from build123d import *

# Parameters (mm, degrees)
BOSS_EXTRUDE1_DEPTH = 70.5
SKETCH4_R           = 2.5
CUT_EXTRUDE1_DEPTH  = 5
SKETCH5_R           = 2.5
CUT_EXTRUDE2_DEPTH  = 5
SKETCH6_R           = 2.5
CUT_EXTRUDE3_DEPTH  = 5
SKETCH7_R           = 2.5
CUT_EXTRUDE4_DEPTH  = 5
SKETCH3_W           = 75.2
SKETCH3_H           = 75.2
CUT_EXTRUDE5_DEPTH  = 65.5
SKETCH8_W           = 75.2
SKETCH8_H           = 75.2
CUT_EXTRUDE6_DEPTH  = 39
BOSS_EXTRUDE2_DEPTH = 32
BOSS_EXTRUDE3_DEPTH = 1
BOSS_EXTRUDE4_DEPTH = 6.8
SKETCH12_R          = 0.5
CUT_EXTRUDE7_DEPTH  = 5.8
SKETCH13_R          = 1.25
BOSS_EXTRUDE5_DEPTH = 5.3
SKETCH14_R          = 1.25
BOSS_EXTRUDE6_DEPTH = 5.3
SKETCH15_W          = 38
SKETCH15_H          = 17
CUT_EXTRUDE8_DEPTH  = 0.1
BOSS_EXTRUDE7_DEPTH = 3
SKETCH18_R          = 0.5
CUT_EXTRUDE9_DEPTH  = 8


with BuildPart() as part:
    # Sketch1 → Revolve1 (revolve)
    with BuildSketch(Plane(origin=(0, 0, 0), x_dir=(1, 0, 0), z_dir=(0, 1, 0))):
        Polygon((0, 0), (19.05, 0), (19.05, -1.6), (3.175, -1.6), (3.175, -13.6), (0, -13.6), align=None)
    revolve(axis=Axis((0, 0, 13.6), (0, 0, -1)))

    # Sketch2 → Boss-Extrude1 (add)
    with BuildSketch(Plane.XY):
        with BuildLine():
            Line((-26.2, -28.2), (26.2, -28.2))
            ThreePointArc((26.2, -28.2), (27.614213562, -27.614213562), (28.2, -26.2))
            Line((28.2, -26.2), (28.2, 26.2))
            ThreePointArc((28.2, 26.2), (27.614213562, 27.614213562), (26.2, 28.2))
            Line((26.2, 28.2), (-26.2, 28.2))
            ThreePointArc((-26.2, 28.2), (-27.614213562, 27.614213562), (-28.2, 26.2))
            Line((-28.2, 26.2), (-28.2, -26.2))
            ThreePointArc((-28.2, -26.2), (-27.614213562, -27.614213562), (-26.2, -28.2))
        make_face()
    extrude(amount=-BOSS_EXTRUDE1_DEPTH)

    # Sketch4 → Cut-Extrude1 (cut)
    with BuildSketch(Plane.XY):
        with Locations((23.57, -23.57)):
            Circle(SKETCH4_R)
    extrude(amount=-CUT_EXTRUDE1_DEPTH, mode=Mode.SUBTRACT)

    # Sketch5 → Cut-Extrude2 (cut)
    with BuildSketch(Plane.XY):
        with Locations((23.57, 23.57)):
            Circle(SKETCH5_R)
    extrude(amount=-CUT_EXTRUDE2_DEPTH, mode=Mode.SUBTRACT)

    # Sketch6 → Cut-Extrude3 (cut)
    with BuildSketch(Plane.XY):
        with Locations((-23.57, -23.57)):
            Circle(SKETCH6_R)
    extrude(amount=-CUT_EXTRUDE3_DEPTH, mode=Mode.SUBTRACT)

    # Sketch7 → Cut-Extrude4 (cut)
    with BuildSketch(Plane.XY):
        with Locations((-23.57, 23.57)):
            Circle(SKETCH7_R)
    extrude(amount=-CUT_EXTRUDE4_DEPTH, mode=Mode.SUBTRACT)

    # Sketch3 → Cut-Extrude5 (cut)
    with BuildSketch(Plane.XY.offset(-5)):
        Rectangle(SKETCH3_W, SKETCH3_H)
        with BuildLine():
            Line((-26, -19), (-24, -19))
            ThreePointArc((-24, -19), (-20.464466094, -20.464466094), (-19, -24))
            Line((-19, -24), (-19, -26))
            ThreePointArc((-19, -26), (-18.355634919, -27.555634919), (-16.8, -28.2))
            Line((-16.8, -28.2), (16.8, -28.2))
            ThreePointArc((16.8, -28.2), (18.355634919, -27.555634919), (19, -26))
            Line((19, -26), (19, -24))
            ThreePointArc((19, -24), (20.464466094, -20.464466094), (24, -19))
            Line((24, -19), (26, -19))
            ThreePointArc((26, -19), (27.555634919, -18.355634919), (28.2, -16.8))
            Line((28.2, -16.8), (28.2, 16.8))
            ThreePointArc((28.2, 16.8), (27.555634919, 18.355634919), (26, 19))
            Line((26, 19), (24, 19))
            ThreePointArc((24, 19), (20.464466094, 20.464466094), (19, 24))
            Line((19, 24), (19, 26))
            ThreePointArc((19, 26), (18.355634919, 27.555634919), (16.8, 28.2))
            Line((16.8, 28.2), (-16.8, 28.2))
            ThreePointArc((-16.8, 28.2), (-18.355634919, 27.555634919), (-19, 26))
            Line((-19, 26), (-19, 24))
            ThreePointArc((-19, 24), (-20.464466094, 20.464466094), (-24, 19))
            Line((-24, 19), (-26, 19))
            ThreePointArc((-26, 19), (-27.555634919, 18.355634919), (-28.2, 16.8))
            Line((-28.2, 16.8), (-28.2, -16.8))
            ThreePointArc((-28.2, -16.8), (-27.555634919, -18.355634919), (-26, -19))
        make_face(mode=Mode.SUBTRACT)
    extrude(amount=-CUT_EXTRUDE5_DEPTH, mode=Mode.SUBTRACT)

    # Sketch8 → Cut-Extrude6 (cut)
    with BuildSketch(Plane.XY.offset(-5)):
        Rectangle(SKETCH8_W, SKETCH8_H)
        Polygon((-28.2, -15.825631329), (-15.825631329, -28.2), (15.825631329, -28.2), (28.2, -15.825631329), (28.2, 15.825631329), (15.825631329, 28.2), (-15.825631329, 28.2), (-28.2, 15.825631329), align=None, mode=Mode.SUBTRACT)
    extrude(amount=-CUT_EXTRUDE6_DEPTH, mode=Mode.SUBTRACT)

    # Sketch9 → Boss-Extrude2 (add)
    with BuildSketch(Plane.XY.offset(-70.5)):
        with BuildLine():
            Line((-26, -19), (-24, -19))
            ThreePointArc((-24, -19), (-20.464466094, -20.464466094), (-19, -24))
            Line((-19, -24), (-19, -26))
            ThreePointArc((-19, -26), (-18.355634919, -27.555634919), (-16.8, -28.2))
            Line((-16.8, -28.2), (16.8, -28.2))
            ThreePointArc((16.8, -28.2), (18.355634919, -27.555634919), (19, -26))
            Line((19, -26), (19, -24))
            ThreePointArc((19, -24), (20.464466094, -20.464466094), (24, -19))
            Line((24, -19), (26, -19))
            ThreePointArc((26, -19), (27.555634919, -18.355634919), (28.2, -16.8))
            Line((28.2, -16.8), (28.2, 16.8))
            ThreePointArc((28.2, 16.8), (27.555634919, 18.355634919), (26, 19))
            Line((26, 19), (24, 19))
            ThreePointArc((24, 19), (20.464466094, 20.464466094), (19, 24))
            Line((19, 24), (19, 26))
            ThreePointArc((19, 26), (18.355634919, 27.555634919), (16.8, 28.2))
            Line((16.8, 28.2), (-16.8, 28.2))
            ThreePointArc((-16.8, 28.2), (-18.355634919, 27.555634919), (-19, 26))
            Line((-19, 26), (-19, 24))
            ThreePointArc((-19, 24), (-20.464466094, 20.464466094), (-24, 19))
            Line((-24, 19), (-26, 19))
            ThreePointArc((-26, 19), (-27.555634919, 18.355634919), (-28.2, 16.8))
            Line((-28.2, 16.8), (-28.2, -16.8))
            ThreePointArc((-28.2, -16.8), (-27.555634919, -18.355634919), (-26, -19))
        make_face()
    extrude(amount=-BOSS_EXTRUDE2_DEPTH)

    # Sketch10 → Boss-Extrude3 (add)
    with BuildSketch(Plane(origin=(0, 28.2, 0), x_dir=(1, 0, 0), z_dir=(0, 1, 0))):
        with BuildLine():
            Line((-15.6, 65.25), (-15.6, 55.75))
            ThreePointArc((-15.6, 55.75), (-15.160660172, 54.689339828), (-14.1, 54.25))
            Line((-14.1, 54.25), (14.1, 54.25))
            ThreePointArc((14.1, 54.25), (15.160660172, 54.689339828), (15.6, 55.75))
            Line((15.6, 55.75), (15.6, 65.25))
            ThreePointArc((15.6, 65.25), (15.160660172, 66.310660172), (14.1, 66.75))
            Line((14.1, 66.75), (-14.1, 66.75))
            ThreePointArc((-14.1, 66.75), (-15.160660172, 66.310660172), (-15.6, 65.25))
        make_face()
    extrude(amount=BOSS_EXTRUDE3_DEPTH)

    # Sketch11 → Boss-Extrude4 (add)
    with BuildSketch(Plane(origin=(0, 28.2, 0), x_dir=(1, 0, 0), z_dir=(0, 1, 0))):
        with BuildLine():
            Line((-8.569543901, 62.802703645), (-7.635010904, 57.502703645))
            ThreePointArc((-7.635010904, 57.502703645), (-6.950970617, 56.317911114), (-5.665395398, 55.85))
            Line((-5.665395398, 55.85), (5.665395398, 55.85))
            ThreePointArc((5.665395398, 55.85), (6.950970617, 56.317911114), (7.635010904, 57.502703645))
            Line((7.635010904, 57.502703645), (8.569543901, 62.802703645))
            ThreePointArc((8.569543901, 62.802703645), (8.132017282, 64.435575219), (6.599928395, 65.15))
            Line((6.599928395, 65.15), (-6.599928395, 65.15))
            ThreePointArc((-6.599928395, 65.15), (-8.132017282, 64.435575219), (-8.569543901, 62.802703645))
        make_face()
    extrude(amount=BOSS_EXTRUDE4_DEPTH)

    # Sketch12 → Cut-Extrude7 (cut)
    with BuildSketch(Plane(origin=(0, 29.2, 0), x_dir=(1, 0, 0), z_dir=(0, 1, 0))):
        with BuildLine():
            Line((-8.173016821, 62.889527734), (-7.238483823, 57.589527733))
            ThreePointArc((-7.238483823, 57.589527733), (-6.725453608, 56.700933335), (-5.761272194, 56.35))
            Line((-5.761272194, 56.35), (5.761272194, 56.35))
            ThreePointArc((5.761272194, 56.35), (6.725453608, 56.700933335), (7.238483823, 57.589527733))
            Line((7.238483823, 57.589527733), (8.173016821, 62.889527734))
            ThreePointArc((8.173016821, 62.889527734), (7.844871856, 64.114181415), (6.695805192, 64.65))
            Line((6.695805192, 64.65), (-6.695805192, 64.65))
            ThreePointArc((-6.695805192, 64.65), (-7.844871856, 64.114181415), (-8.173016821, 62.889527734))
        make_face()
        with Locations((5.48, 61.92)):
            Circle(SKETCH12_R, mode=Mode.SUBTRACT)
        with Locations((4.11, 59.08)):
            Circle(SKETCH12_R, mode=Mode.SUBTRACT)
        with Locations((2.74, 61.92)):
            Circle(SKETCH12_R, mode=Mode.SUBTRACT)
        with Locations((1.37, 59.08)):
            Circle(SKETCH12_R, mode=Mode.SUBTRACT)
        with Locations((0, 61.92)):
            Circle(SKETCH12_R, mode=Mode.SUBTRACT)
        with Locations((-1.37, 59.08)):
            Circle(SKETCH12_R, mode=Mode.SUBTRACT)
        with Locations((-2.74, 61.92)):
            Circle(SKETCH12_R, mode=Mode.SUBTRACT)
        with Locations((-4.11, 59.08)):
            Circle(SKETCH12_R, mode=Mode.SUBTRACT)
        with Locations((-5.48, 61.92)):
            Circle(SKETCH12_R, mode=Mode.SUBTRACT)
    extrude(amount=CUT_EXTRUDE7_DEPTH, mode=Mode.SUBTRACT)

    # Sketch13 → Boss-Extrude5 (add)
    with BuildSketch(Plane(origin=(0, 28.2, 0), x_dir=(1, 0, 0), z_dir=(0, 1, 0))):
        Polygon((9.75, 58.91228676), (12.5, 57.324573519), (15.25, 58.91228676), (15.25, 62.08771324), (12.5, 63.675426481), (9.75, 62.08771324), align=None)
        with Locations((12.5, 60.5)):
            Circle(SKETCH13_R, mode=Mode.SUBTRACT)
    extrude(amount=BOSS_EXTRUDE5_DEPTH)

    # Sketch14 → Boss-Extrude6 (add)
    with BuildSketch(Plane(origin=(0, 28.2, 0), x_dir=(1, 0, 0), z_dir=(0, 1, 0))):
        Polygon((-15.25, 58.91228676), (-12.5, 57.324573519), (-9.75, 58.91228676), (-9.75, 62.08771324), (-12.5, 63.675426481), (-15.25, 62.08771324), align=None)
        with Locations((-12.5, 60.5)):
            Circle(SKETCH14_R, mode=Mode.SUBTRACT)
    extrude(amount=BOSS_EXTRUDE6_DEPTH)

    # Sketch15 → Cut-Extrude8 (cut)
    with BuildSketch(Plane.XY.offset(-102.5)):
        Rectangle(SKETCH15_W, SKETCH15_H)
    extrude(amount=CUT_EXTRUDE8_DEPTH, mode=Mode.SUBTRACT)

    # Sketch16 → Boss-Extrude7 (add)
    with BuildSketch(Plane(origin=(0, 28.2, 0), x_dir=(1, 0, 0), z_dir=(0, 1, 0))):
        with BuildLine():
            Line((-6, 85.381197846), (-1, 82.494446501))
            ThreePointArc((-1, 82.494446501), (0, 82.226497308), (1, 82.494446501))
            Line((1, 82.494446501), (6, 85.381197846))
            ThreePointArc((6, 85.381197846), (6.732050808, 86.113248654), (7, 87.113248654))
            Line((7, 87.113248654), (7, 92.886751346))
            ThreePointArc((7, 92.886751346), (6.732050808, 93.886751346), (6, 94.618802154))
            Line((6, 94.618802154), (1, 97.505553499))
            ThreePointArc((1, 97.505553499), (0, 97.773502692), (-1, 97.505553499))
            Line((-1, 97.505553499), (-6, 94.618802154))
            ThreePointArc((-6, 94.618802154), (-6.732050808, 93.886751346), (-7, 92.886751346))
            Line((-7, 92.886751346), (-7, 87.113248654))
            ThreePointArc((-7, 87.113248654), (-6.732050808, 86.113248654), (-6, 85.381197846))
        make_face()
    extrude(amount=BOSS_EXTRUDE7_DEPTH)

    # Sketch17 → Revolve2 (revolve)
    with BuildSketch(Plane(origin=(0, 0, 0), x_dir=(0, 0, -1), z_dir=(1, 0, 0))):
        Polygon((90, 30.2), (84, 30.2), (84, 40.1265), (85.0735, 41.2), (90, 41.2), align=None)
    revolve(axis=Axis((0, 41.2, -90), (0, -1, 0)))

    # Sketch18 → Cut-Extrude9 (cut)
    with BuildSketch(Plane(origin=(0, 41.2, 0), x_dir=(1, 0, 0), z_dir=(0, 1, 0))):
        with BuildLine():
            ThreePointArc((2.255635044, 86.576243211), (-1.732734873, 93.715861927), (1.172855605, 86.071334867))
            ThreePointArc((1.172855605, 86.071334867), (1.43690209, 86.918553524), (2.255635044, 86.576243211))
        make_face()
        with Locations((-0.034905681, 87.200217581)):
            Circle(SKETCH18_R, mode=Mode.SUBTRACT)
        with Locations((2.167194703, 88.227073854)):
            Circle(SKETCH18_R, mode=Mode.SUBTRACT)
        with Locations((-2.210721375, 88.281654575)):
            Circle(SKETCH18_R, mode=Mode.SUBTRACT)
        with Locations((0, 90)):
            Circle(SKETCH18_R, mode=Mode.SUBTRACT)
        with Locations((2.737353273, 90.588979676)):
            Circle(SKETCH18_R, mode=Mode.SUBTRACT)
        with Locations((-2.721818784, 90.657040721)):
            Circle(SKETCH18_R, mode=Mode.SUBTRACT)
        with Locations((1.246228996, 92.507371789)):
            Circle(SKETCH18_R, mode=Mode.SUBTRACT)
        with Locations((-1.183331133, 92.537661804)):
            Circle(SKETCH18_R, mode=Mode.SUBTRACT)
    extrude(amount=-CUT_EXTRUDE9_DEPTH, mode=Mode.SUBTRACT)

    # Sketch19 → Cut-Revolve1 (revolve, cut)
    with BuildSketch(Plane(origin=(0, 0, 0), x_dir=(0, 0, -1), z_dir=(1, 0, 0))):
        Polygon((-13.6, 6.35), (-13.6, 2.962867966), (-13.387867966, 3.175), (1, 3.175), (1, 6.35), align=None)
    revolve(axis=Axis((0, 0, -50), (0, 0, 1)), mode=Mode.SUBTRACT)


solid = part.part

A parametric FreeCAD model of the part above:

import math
import FreeCAD as App
import Part
import Sketcher

V = App.Vector
Q = App.Units.Quantity


def add_polygon(sketch, points):
    """Adds a closed chain of lines whose ends are joined by coincident constraints."""
    first, n = sketch.GeometryCount, len(points)
    for a, b in zip(points, points[1:] + points[:1]):
        sketch.addGeometry(Part.LineSegment(App.Vector(*a, 0), App.Vector(*b, 0)), False)
    for i in range(n):
        sketch.addConstraint(Sketcher.Constraint("Coincident", first + i, 2, first + (i + 1) % n, 1))

doc = App.newDocument("Part")
body = doc.addObject("PartDesign::Body", "Body")

# Sketch on XZ plane
sketch1 = body.newObject("Sketcher::SketchObject", "Sketch")
sketch1.AttachmentSupport = (doc.getObject("XZ_Plane"), [""])
sketch1.MapMode = "FlatFace"
add_polygon(sketch1, [(19.05, 0), (0, 0), (0, 13.6), (3.175, 13.6), (3.175, 1.6), (19.05, 1.6)])  # lines 0-5
sketch1.addConstraint([
    Sketcher.Constraint("Horizontal", 0),
    Sketcher.Constraint("Vertical", 1),
    Sketcher.Constraint("Horizontal", 2),
    Sketcher.Constraint("Vertical", 3),
    Sketcher.Constraint("Horizontal", 4),
    Sketcher.Constraint("Vertical", 5),
    Sketcher.Constraint("Coincident", 0, 2, -1, 1),
    Sketcher.Constraint("DistanceY", 3, 2, 3, 1, 12.0),
    Sketcher.Constraint("DistanceY", 1, 1, 1, 2, 13.6),
    Sketcher.Constraint("DistanceX", 0, 2, 0, 1, 19.05),
    Sketcher.Constraint("DistanceX", 2, 1, 2, 2, 3.175),
])
revolution = body.newObject("PartDesign::Revolution", "Revolution")
revolution.Profile = sketch1
revolution.ReferenceAxis = (sketch1, ["V_Axis"])
revolution.Angle = 360

# Sketch on XY plane
sketch2 = body.newObject("Sketcher::SketchObject", "Sketch001")
sketch2.AttachmentSupport = (doc.getObject("XY_Plane"), [""])
sketch2.MapMode = "FlatFace"
sketch2.addGeometry([
    Part.LineSegment(V(-26.2, -28.2, 0), V(26.2, -28.2, 0)),  # 0
    Part.ArcOfCircle(Part.Circle(V(26.2, -26.2, 0), V(0, 0, 1), 2), math.radians(-90), math.radians(0)),  # 1
    Part.LineSegment(V(28.2, -26.2, 0), V(28.2, 26.2, 0)),  # 2
    Part.ArcOfCircle(Part.Circle(V(26.2, 26.2, 0), V(0, 0, 1), 2), math.radians(0), math.radians(90)),  # 3
    Part.LineSegment(V(26.2, 28.2, 0), V(-26.2, 28.2, 0)),  # 4
    Part.ArcOfCircle(Part.Circle(V(-26.2, 26.2, 0), V(0, 0, 1), 2), math.radians(90), math.radians(180)),  # 5
    Part.LineSegment(V(-28.2, 26.2, 0), V(-28.2, -26.2, 0)),  # 6
    Part.ArcOfCircle(Part.Circle(V(-26.2, -26.2, 0), V(0, 0, 1), 2), math.radians(-180), math.radians(-90)),  # 7
], False)
sketch2.addConstraint([
    Sketcher.Constraint("Tangent", 0, 2, 1, 1),
    Sketcher.Constraint("Tangent", 1, 2, 2, 1),
    Sketcher.Constraint("Tangent", 2, 2, 3, 1),
    Sketcher.Constraint("Tangent", 3, 2, 4, 1),
    Sketcher.Constraint("Tangent", 4, 2, 5, 1),
    Sketcher.Constraint("Tangent", 5, 2, 6, 1),
    Sketcher.Constraint("Tangent", 6, 2, 7, 1),
    Sketcher.Constraint("Tangent", 7, 2, 0, 1),
    Sketcher.Constraint("Horizontal", 0),
    Sketcher.Constraint("Vertical", 2),
    Sketcher.Constraint("Horizontal", 4),
    Sketcher.Constraint("Vertical", 6),
    Sketcher.Constraint("Equal", 1, 3),
    Sketcher.Constraint("Equal", 3, 5),
    Sketcher.Constraint("Equal", 5, 7),
    Sketcher.Constraint("Symmetric", 1, 3, 5, 3, -1, 1),
    Sketcher.Constraint("Equal", 4, 2),
    Sketcher.Constraint("Radius", 1, 2.0),
    Sketcher.Constraint("DistanceX", 0, 1, 0, 2, 52.4),
])
pad1 = body.newObject("PartDesign::Pad", "Pad")
pad1.Profile = sketch2
pad1.Length = 70.5
pad1.Reversed = True

# Sketch on XY plane
sketch3 = body.newObject("Sketcher::SketchObject", "Sketch002")
sketch3.AttachmentSupport = (doc.getObject("XY_Plane"), [""])
sketch3.MapMode = "FlatFace"
sketch3.addGeometry(Part.Circle(V(23.57, -23.57, 0), V(0, 0, 1), 2.5), False)
sketch3.addConstraint([
    Sketcher.Constraint("Diameter", 0, 5.0),
    Sketcher.Constraint("DistanceX", -1, 1, 0, 3, 23.57),
    Sketcher.Constraint("DistanceY", 0, 3, -1, 1, 23.57),
])
pocket1 = body.newObject("PartDesign::Pocket", "Pocket")
pocket1.Profile = sketch3
pocket1.Length = 5

# Sketch on XY plane
sketch4 = body.newObject("Sketcher::SketchObject", "Sketch003")
sketch4.AttachmentSupport = (doc.getObject("XY_Plane"), [""])
sketch4.MapMode = "FlatFace"
sketch4.addGeometry(Part.Circle(V(23.57, 23.57, 0), V(0, 0, 1), 2.5), False)
sketch4.addConstraint([
    Sketcher.Constraint("Diameter", 0, 5.0),
    Sketcher.Constraint("DistanceX", -1, 1, 0, 3, 23.57),
    Sketcher.Constraint("DistanceY", -1, 1, 0, 3, 23.57),
])
pocket2 = body.newObject("PartDesign::Pocket", "Pocket001")
pocket2.Profile = sketch4
pocket2.Length = 5

# Sketch on XY plane
sketch5 = body.newObject("Sketcher::SketchObject", "Sketch004")
sketch5.AttachmentSupport = (doc.getObject("XY_Plane"), [""])
sketch5.MapMode = "FlatFace"
sketch5.addGeometry(Part.Circle(V(-23.57, -23.57, 0), V(0, 0, 1), 2.5), False)
sketch5.addConstraint([
    Sketcher.Constraint("Diameter", 0, 5.0),
    Sketcher.Constraint("DistanceX", 0, 3, -1, 1, 23.57),
    Sketcher.Constraint("DistanceY", 0, 3, -1, 1, 23.57),
])
pocket3 = body.newObject("PartDesign::Pocket", "Pocket002")
pocket3.Profile = sketch5
pocket3.Length = 5

# Sketch on XY plane
sketch6 = body.newObject("Sketcher::SketchObject", "Sketch005")
sketch6.AttachmentSupport = (doc.getObject("XY_Plane"), [""])
sketch6.MapMode = "FlatFace"
sketch6.addGeometry(Part.Circle(V(-23.57, 23.57, 0), V(0, 0, 1), 2.5), False)
sketch6.addConstraint([
    Sketcher.Constraint("Diameter", 0, 5.0),
    Sketcher.Constraint("DistanceX", 0, 3, -1, 1, 23.57),
    Sketcher.Constraint("DistanceY", -1, 1, 0, 3, 23.57),
])
pocket4 = body.newObject("PartDesign::Pocket", "Pocket003")
pocket4.Profile = sketch6
pocket4.Length = 5

# Sketch on XY plane
sketch7 = body.newObject("Sketcher::SketchObject", "Sketch006")
sketch7.AttachmentSupport = (doc.getObject("XY_Plane"), [""])
sketch7.MapMode = "FlatFace"
sketch7.AttachmentOffset = App.Placement(V(0, 0, -5), App.Rotation())
add_polygon(sketch7, [(-37.6, 37.6), (-37.6, -37.6), (37.6, -37.6), (37.6, 37.6)])  # lines 0-3
sketch7.addGeometry(Part.LineSegment(V(-24, -19, 0), V(-26, -19, 0)), False)  # 4
sketch7.addGeometry(Part.ArcOfCircle(Part.Circle(V(-26, -16.8, 0), V(0, 0, 1), 2.2), math.radians(180), math.radians(270)), False)  # 5
sketch7.addGeometry(Part.LineSegment(V(-28.2, -16.8, 0), V(-28.2, 16.8, 0)), False)  # 6
sketch7.addGeometry(Part.ArcOfCircle(Part.Circle(V(-26, 16.8, 0), V(0, 0, 1), 2.2), math.radians(90), math.radians(180)), False)  # 7
sketch7.addGeometry(Part.LineSegment(V(-26, 19, 0), V(-24, 19, 0)), False)  # 8
sketch7.addGeometry(Part.ArcOfCircle(Part.Circle(V(-24, 24, 0), V(0, 0, 1), 5), math.radians(-90), math.radians(0)), False)  # 9
sketch7.addGeometry(Part.LineSegment(V(-19, 24, 0), V(-19, 26, 0)), False)  # 10
sketch7.addGeometry(Part.ArcOfCircle(Part.Circle(V(-16.8, 26, 0), V(0, 0, 1), 2.2), math.radians(90), math.radians(180)), False)  # 11
sketch7.addGeometry(Part.LineSegment(V(-16.8, 28.2, 0), V(16.8, 28.2, 0)), False)  # 12
sketch7.addGeometry(Part.ArcOfCircle(Part.Circle(V(16.8, 26, 0), V(0, 0, 1), 2.2), math.radians(0), math.radians(90)), False)  # 13
sketch7.addGeometry(Part.LineSegment(V(19, 26, 0), V(19, 24, 0)), False)  # 14
sketch7.addGeometry(Part.ArcOfCircle(Part.Circle(V(24, 24, 0), V(0, 0, 1), 5), math.radians(180), math.radians(270)), False)  # 15
sketch7.addGeometry(Part.LineSegment(V(24, 19, 0), V(26, 19, 0)), False)  # 16
sketch7.addGeometry(Part.ArcOfCircle(Part.Circle(V(26, 16.8, 0), V(0, 0, 1), 2.2), math.radians(0), math.radians(90)), False)  # 17
sketch7.addGeometry(Part.LineSegment(V(28.2, 16.8, 0), V(28.2, -16.8, 0)), False)  # 18
sketch7.addGeometry(Part.ArcOfCircle(Part.Circle(V(26, -16.8, 0), V(0, 0, 1), 2.2), math.radians(-90), math.radians(0)), False)  # 19
sketch7.addGeometry(Part.LineSegment(V(26, -19, 0), V(24, -19, 0)), False)  # 20
sketch7.addGeometry(Part.ArcOfCircle(Part.Circle(V(24, -24, 0), V(0, 0, 1), 5), math.radians(90), math.radians(180)), False)  # 21
sketch7.addGeometry(Part.LineSegment(V(19, -24, 0), V(19, -26, 0)), False)  # 22
sketch7.addGeometry(Part.ArcOfCircle(Part.Circle(V(16.8, -26, 0), V(0, 0, 1), 2.2), math.radians(-90), math.radians(0)), False)  # 23
sketch7.addGeometry(Part.LineSegment(V(16.8, -28.2, 0), V(-16.8, -28.2, 0)), False)  # 24
sketch7.addGeometry(Part.ArcOfCircle(Part.Circle(V(-16.8, -26, 0), V(0, 0, 1), 2.2), math.radians(180), math.radians(270)), False)  # 25
sketch7.addGeometry(Part.LineSegment(V(-19, -26, 0), V(-19, -24, 0)), False)  # 26
sketch7.addGeometry(Part.ArcOfCircle(Part.Circle(V(-24, -24, 0), V(0, 0, 1), 5), math.radians(0), math.radians(90)), False)  # 27
sketch7.addConstraint([
    Sketcher.Constraint("Tangent", 4, 2, 5, 2),
    Sketcher.Constraint("Tangent", 5, 1, 6, 1),
    Sketcher.Constraint("Tangent", 6, 2, 7, 2),
    Sketcher.Constraint("Tangent", 7, 1, 8, 1),
    Sketcher.Constraint("Tangent", 8, 2, 9, 1),
    Sketcher.Constraint("Tangent", 9, 2, 10, 1),
    Sketcher.Constraint("Tangent", 10, 2, 11, 2),
    Sketcher.Constraint("Tangent", 11, 1, 12, 1),
    Sketcher.Constraint("Tangent", 12, 2, 13, 2),
    Sketcher.Constraint("Tangent", 13, 1, 14, 1),
    Sketcher.Constraint("Tangent", 14, 2, 15, 1),
    Sketcher.Constraint("Tangent", 15, 2, 16, 1),
    Sketcher.Constraint("Tangent", 16, 2, 17, 2),
    Sketcher.Constraint("Tangent", 17, 1, 18, 1),
    Sketcher.Constraint("Tangent", 18, 2, 19, 2),
    Sketcher.Constraint("Tangent", 19, 1, 20, 1),
    Sketcher.Constraint("Tangent", 20, 2, 21, 1),
    Sketcher.Constraint("Tangent", 21, 2, 22, 1),
    Sketcher.Constraint("Tangent", 22, 2, 23, 2),
    Sketcher.Constraint("Tangent", 23, 1, 24, 1),
    Sketcher.Constraint("Tangent", 24, 2, 25, 2),
    Sketcher.Constraint("Tangent", 25, 1, 26, 1),
    Sketcher.Constraint("Tangent", 26, 2, 27, 1),
    Sketcher.Constraint("Tangent", 27, 2, 4, 1),
    Sketcher.Constraint("Vertical", 0),
    Sketcher.Constraint("Horizontal", 1),
    Sketcher.Constraint("Vertical", 2),
    Sketcher.Constraint("Horizontal", 3),
    Sketcher.Constraint("Horizontal", 4),
    Sketcher.Constraint("Vertical", 6),
    Sketcher.Constraint("Horizontal", 8),
    Sketcher.Constraint("Vertical", 10),
    Sketcher.Constraint("Horizontal", 12),
    Sketcher.Constraint("Vertical", 14),
    Sketcher.Constraint("Horizontal", 16),
    Sketcher.Constraint("Vertical", 18),
    Sketcher.Constraint("Horizontal", 20),
    Sketcher.Constraint("Vertical", 22),
    Sketcher.Constraint("Horizontal", 24),
    Sketcher.Constraint("Vertical", 26),
    Sketcher.Constraint("Equal", 5, 7),
    Sketcher.Constraint("Equal", 7, 11),
    Sketcher.Constraint("Equal", 11, 13),
    Sketcher.Constraint("Equal", 9, 15),
    Sketcher.Constraint("Equal", 13, 17),
    Sketcher.Constraint("Equal", 17, 19),
    Sketcher.Constraint("Equal", 15, 21),
    Sketcher.Constraint("Equal", 19, 23),
    Sketcher.Constraint("Equal", 23, 25),
    Sketcher.Constraint("Equal", 21, 27),
    Sketcher.Constraint("Symmetric", 5, 3, 17, 3, -1, 1),
    Sketcher.Constraint("Symmetric", 9, 3, 21, 3, -1, 1),
    Sketcher.Constraint("Symmetric", 13, 3, 25, 3, -1, 1),
    Sketcher.Constraint("Symmetric", 0, 2, 2, 2, -1, 1),
    Sketcher.Constraint("Symmetric", 9, 3, 15, 3, -2),
    Sketcher.Constraint("Equal", 3, 0),
    Sketcher.Constraint("Equal", 24, 6),
    Sketcher.Constraint("Equal", 20, 10),
    Sketcher.Constraint("Radius", 9, 5.0),
    Sketcher.Constraint("Radius", 5, 2.2),
    Sketcher.Constraint("DistanceX", 4, 2, 4, 1, 2.0),
    Sketcher.Constraint("DistanceX", 1, 1, 1, 2, 75.2),
    Sketcher.Constraint("DistanceX", 12, 1, 12, 2, 33.6),
])
pocket5 = body.newObject("PartDesign::Pocket", "Pocket004")
pocket5.Profile = sketch7
pocket5.Length = 65.5

# Sketch on XY plane
sketch8 = body.newObject("Sketcher::SketchObject", "Sketch007")
sketch8.AttachmentSupport = (doc.getObject("XY_Plane"), [""])
sketch8.MapMode = "FlatFace"
sketch8.AttachmentOffset = App.Placement(V(0, 0, -5), App.Rotation())
add_polygon(sketch8, [(-37.6, 37.6), (-37.6, -37.6), (37.6, -37.6), (37.6, 37.6)])  # lines 0-3
add_polygon(sketch8, [(-15.825631, -28.2), (-28.2, -15.825631), (-28.2, 15.825631), (-15.825631, 28.2), (15.825631, 28.2), (28.2, 15.825631), (28.2, -15.825631), (15.825631, -28.2)])  # lines 4-11
sketch8.addConstraint([
    Sketcher.Constraint("Vertical", 0),
    Sketcher.Constraint("Horizontal", 1),
    Sketcher.Constraint("Vertical", 2),
    Sketcher.Constraint("Horizontal", 3),
    Sketcher.Constraint("Vertical", 5),
    Sketcher.Constraint("Horizontal", 7),
    Sketcher.Constraint("Vertical", 9),
    Sketcher.Constraint("Horizontal", 11),
    Sketcher.Constraint("Symmetric", 0, 2, 2, 2, -1, 1),
    Sketcher.Constraint("Symmetric", 4, 2, 8, 2, -1, 1),
    Sketcher.Constraint("Symmetric", 6, 2, 10, 2, -1, 1),
    Sketcher.Constraint("Perpendicular", 4, 6),
    Sketcher.Constraint("Perpendicular", 6, 8),
    Sketcher.Constraint("Perpendicular", 8, 10),
    Sketcher.Constraint("Horizontal", 5, 2, 8, 2),
    Sketcher.Constraint("Vertical", 7, 2, 10, 2),
    Sketcher.Constraint("Equal", 3, 0),
    Sketcher.Constraint("Equal", 11, 5),
    Sketcher.Constraint("DistanceX", 1, 1, 1, 2, 75.2),
    Sketcher.Constraint("Distance", 4, 17.5),
    Sketcher.Constraint("DistanceX", 4, 2, -1, 1, 28.2),
])
pocket6 = body.newObject("PartDesign::Pocket", "Pocket005")
pocket6.Profile = sketch8
pocket6.Length = 39

# Sketch on XY plane
sketch9 = body.newObject("Sketcher::SketchObject", "Sketch008")
sketch9.AttachmentSupport = (doc.getObject("XY_Plane"), [""])
sketch9.MapMode = "FlatFace"
sketch9.AttachmentOffset = App.Placement(V(0, 0, -70.5), App.Rotation())
sketch9.addGeometry([
    Part.LineSegment(V(-26, -19, 0), V(-24, -19, 0)),  # 0
    Part.ArcOfCircle(Part.Circle(V(-24, -24, 0), V(0, 0, 1), 5), math.radians(0), math.radians(90)),  # 1
    Part.LineSegment(V(-19, -24, 0), V(-19, -26, 0)),  # 2
    Part.ArcOfCircle(Part.Circle(V(-16.8, -26, 0), V(0, 0, 1), 2.2), math.radians(180), math.radians(270)),  # 3
    Part.LineSegment(V(-16.8, -28.2, 0), V(16.8, -28.2, 0)),  # 4
    Part.ArcOfCircle(Part.Circle(V(16.8, -26, 0), V(0, 0, 1), 2.2), math.radians(-90), math.radians(0)),  # 5
    Part.LineSegment(V(19, -26, 0), V(19, -24, 0)),  # 6
    Part.ArcOfCircle(Part.Circle(V(24, -24, 0), V(0, 0, 1), 5), math.radians(90), math.radians(180)),  # 7
    Part.LineSegment(V(24, -19, 0), V(26, -19, 0)),  # 8
    Part.ArcOfCircle(Part.Circle(V(26, -16.8, 0), V(0, 0, 1), 2.2), math.radians(-90), math.radians(0)),  # 9
    Part.LineSegment(V(28.2, -16.8, 0), V(28.2, 16.8, 0)),  # 10
    Part.ArcOfCircle(Part.Circle(V(26, 16.8, 0), V(0, 0, 1), 2.2), math.radians(0), math.radians(90)),  # 11
    Part.LineSegment(V(26, 19, 0), V(24, 19, 0)),  # 12
    Part.ArcOfCircle(Part.Circle(V(24, 24, 0), V(0, 0, 1), 5), math.radians(180), math.radians(270)),  # 13
    Part.LineSegment(V(19, 24, 0), V(19, 26, 0)),  # 14
    Part.ArcOfCircle(Part.Circle(V(16.8, 26, 0), V(0, 0, 1), 2.2), math.radians(0), math.radians(90)),  # 15
    Part.LineSegment(V(16.8, 28.2, 0), V(-16.8, 28.2, 0)),  # 16
    Part.ArcOfCircle(Part.Circle(V(-16.8, 26, 0), V(0, 0, 1), 2.2), math.radians(90), math.radians(180)),  # 17
    Part.LineSegment(V(-19, 26, 0), V(-19, 24, 0)),  # 18
    Part.ArcOfCircle(Part.Circle(V(-24, 24, 0), V(0, 0, 1), 5), math.radians(-90), math.radians(0)),  # 19
    Part.LineSegment(V(-24, 19, 0), V(-26, 19, 0)),  # 20
    Part.ArcOfCircle(Part.Circle(V(-26, 16.8, 0), V(0, 0, 1), 2.2), math.radians(90), math.radians(180)),  # 21
    Part.LineSegment(V(-28.2, 16.8, 0), V(-28.2, -16.8, 0)),  # 22
    Part.ArcOfCircle(Part.Circle(V(-26, -16.8, 0), V(0, 0, 1), 2.2), math.radians(180), math.radians(270)),  # 23
], False)
sketch9.addConstraint([
    Sketcher.Constraint("Tangent", 0, 2, 1, 2),
    Sketcher.Constraint("Tangent", 1, 1, 2, 1),
    Sketcher.Constraint("Tangent", 2, 2, 3, 1),
    Sketcher.Constraint("Tangent", 3, 2, 4, 1),
    Sketcher.Constraint("Tangent", 4, 2, 5, 1),
    Sketcher.Constraint("Tangent", 5, 2, 6, 1),
    Sketcher.Constraint("Tangent", 6, 2, 7, 2),
    Sketcher.Constraint("Tangent", 7, 1, 8, 1),
    Sketcher.Constraint("Tangent", 8, 2, 9, 1),
    Sketcher.Constraint("Tangent", 9, 2, 10, 1),
    Sketcher.Constraint("Tangent", 10, 2, 11, 1),
    Sketcher.Constraint("Tangent", 11, 2, 12, 1),
    Sketcher.Constraint("Tangent", 12, 2, 13, 2),
    Sketcher.Constraint("Tangent", 13, 1, 14, 1),
    Sketcher.Constraint("Tangent", 14, 2, 15, 1),
    Sketcher.Constraint("Tangent", 15, 2, 16, 1),
    Sketcher.Constraint("Tangent", 16, 2, 17, 1),
    Sketcher.Constraint("Tangent", 17, 2, 18, 1),
    Sketcher.Constraint("Tangent", 18, 2, 19, 2),
    Sketcher.Constraint("Tangent", 19, 1, 20, 1),
    Sketcher.Constraint("Tangent", 20, 2, 21, 1),
    Sketcher.Constraint("Tangent", 21, 2, 22, 1),
    Sketcher.Constraint("Tangent", 22, 2, 23, 1),
    Sketcher.Constraint("Tangent", 23, 2, 0, 1),
    Sketcher.Constraint("Horizontal", 0),
    Sketcher.Constraint("Vertical", 2),
    Sketcher.Constraint("Horizontal", 4),
    Sketcher.Constraint("Vertical", 6),
    Sketcher.Constraint("Horizontal", 8),
    Sketcher.Constraint("Vertical", 10),
    Sketcher.Constraint("Horizontal", 12),
    Sketcher.Constraint("Vertical", 14),
    Sketcher.Constraint("Horizontal", 16),
    Sketcher.Constraint("Vertical", 18),
    Sketcher.Constraint("Horizontal", 20),
    Sketcher.Constraint("Vertical", 22),
    Sketcher.Constraint("Equal", 3, 5),
    Sketcher.Constraint("Equal", 1, 7),
    Sketcher.Constraint("Equal", 5, 9),
    Sketcher.Constraint("Equal", 9, 11),
    Sketcher.Constraint("Equal", 7, 13),
    Sketcher.Constraint("Equal", 11, 15),
    Sketcher.Constraint("Equal", 15, 17),
    Sketcher.Constraint("Equal", 13, 19),
    Sketcher.Constraint("Equal", 17, 21),
    Sketcher.Constraint("Equal", 21, 23),
    Sketcher.Constraint("Symmetric", 1, 3, 13, 3, -1, 1),
    Sketcher.Constraint("Symmetric", 5, 3, 17, 3, -1, 1),
    Sketcher.Constraint("Symmetric", 9, 3, 21, 3, -1, 1),
    Sketcher.Constraint("Symmetric", 1, 3, 7, 3, -2),
    Sketcher.Constraint("Equal", 20, 2),
    Sketcher.Constraint("Equal", 16, 10),
    Sketcher.Constraint("Radius", 1, 5.0),
    Sketcher.Constraint("Radius", 3, 2.2),
    Sketcher.Constraint("DistanceX", 0, 1, 0, 2, 2.0),
    Sketcher.Constraint("DistanceX", 4, 1, 4, 2, 33.6),
])
pad2 = body.newObject("PartDesign::Pad", "Pad001")
pad2.Profile = sketch9
pad2.Length = 32
pad2.Reversed = True

# Sketch on XZ plane
sketch10 = body.newObject("Sketcher::SketchObject", "Sketch009")
sketch10.AttachmentSupport = (doc.getObject("XZ_Plane"), [""])
sketch10.MapMode = "FlatFace"
sketch10.AttachmentOffset = App.Placement(V(0, 0, -28.2), App.Rotation())
sketch10.addGeometry([
    Part.LineSegment(V(-15.6, -65.25, 0), V(-15.6, -55.75, 0)),  # 0
    Part.ArcOfCircle(Part.Circle(V(-14.1, -55.75, 0), V(0, 0, 1), 1.5), math.radians(90), math.radians(180)),  # 1
    Part.LineSegment(V(-14.1, -54.25, 0), V(14.1, -54.25, 0)),  # 2
    Part.ArcOfCircle(Part.Circle(V(14.1, -55.75, 0), V(0, 0, 1), 1.5), math.radians(0), math.radians(90)),  # 3
    Part.LineSegment(V(15.6, -55.75, 0), V(15.6, -65.25, 0)),  # 4
    Part.ArcOfCircle(Part.Circle(V(14.1, -65.25, 0), V(0, 0, 1), 1.5), math.radians(-90), math.radians(0)),  # 5
    Part.LineSegment(V(14.1, -66.75, 0), V(-14.1, -66.75, 0)),  # 6
    Part.ArcOfCircle(Part.Circle(V(-14.1, -65.25, 0), V(0, 0, 1), 1.5), math.radians(180), math.radians(270)),  # 7
], False)
sketch10.addConstraint([
    Sketcher.Constraint("Tangent", 0, 2, 1, 2),
    Sketcher.Constraint("Tangent", 1, 1, 2, 1),
    Sketcher.Constraint("Tangent", 2, 2, 3, 2),
    Sketcher.Constraint("Tangent", 3, 1, 4, 1),
    Sketcher.Constraint("Tangent", 4, 2, 5, 2),
    Sketcher.Constraint("Tangent", 5, 1, 6, 1),
    Sketcher.Constraint("Tangent", 6, 2, 7, 2),
    Sketcher.Constraint("Tangent", 7, 1, 0, 1),
    Sketcher.Constraint("Vertical", 0),
    Sketcher.Constraint("Horizontal", 2),
    Sketcher.Constraint("Vertical", 4),
    Sketcher.Constraint("Horizontal", 6),
    Sketcher.Constraint("Equal", 1, 3),
    Sketcher.Constraint("Equal", 3, 5),
    Sketcher.Constraint("Equal", 5, 7),
    Sketcher.Constraint("Radius", 1, 1.5),
    Sketcher.Constraint("DistanceX", 2, 1, 2, 2, 28.2),
    Sketcher.Constraint("DistanceY", 0, 1, 0, 2, 9.5),
    Sketcher.Constraint("DistanceX", 1, 3, -1, 1, 14.1),
    Sketcher.Constraint("DistanceY", 1, 3, -1, 1, 55.75),
])
pad3 = body.newObject("PartDesign::Pad", "Pad002")
pad3.Profile = sketch10
pad3.Length = 1
pad3.Reversed = True

# Sketch on XZ plane
sketch11 = body.newObject("Sketcher::SketchObject", "Sketch010")
sketch11.AttachmentSupport = (doc.getObject("XZ_Plane"), [""])
sketch11.MapMode = "FlatFace"
sketch11.AttachmentOffset = App.Placement(V(0, 0, -28.2), App.Rotation())
sketch11.addGeometry([
    Part.LineSegment(V(-8.569544, -62.802704, 0), V(-7.635011, -57.502704, 0)),  # 0
    Part.ArcOfCircle(Part.Circle(V(-5.665395, -57.85, 0), V(0, 0, 1), 2), math.radians(90), math.radians(170)),  # 1
    Part.LineSegment(V(-5.665395, -55.85, 0), V(5.665395, -55.85, 0)),  # 2
    Part.ArcOfCircle(Part.Circle(V(5.665395, -57.85, 0), V(0, 0, 1), 2), math.radians(10), math.radians(90)),  # 3
    Part.LineSegment(V(7.635011, -57.502704, 0), V(8.569544, -62.802704, 0)),  # 4
    Part.ArcOfCircle(Part.Circle(V(6.599928, -63.15, 0), V(0, 0, 1), 2), math.radians(-90), math.radians(10)),  # 5
    Part.LineSegment(V(6.599928, -65.15, 0), V(-6.599928, -65.15, 0)),  # 6
    Part.ArcOfCircle(Part.Circle(V(-6.599928, -63.15, 0), V(0, 0, 1), 2), math.radians(170), math.radians(270)),  # 7
], False)
sketch11.addConstraint([
    Sketcher.Constraint("Tangent", 0, 2, 1, 2),
    Sketcher.Constraint("Tangent", 1, 1, 2, 1),
    Sketcher.Constraint("Tangent", 2, 2, 3, 2),
    Sketcher.Constraint("Tangent", 3, 1, 4, 1),
    Sketcher.Constraint("Tangent", 4, 2, 5, 2),
    Sketcher.Constraint("Tangent", 5, 1, 6, 1),
    Sketcher.Constraint("Tangent", 6, 2, 7, 2),
    Sketcher.Constraint("Tangent", 7, 1, 0, 1),
    Sketcher.Constraint("Horizontal", 2),
    Sketcher.Constraint("Horizontal", 6),
    Sketcher.Constraint("Equal", 1, 3),
    Sketcher.Constraint("Equal", 3, 5),
    Sketcher.Constraint("Equal", 5, 7),
    Sketcher.Constraint("Symmetric", 0, 2, 3, 1, -2),
    Sketcher.Constraint("Radius", 1, 2.0),
    Sketcher.Constraint("Angle", 0, Q("80 deg")),
    Sketcher.Constraint("DistanceY", 5, 3, 3, 3, 5.3),
    Sketcher.Constraint("DistanceY", 1, 3, -1, 1, 57.85),
    Sketcher.Constraint("DistanceX", 2, 1, 2, 2, 11.330791),
])
pad4 = body.newObject("PartDesign::Pad", "Pad003")
pad4.Profile = sketch11
pad4.Length = 6.8
pad4.Reversed = True

# Sketch on XZ plane
sketch12 = body.newObject("Sketcher::SketchObject", "Sketch011")
sketch12.AttachmentSupport = (doc.getObject("XZ_Plane"), [""])
sketch12.MapMode = "FlatFace"
sketch12.AttachmentOffset = App.Placement(V(0, 0, -29.2), App.Rotation())
sketch12.addGeometry([
    Part.LineSegment(V(-8.173017, -62.889528, 0), V(-7.238484, -57.589528, 0)),  # 0
    Part.ArcOfCircle(Part.Circle(V(-5.761272, -57.85, 0), V(0, 0, 1), 1.5), math.radians(90), math.radians(170)),  # 1
    Part.LineSegment(V(-5.761272, -56.35, 0), V(5.761272, -56.35, 0)),  # 2
    Part.ArcOfCircle(Part.Circle(V(5.761272, -57.85, 0), V(0, 0, 1), 1.5), math.radians(10), math.radians(90)),  # 3
    Part.LineSegment(V(7.238484, -57.589528, 0), V(8.173017, -62.889528, 0)),  # 4
    Part.ArcOfCircle(Part.Circle(V(6.695805, -63.15, 0), V(0, 0, 1), 1.5), math.radians(-90), math.radians(10)),  # 5
    Part.LineSegment(V(6.695805, -64.65, 0), V(-6.695805, -64.65, 0)),  # 6
    Part.ArcOfCircle(Part.Circle(V(-6.695805, -63.15, 0), V(0, 0, 1), 1.5), math.radians(170), math.radians(270)),  # 7
    Part.Circle(V(-4.11, -59.08, 0), V(0, 0, 1), 0.5),  # 8
    Part.Circle(V(-1.37, -59.08, 0), V(0, 0, 1), 0.5),  # 9
    Part.Circle(V(1.37, -59.08, 0), V(0, 0, 1), 0.5),  # 10
    Part.Circle(V(4.11, -59.08, 0), V(0, 0, 1), 0.5),  # 11
    Part.Circle(V(-5.48, -61.92, 0), V(0, 0, 1), 0.5),  # 12
    Part.Circle(V(-2.74, -61.92, 0), V(0, 0, 1), 0.5),  # 13
    Part.Circle(V(0, -61.92, 0), V(0, 0, 1), 0.5),  # 14
    Part.Circle(V(2.74, -61.92, 0), V(0, 0, 1), 0.5),  # 15
    Part.Circle(V(5.48, -61.92, 0), V(0, 0, 1), 0.5),  # 16
], False)
sketch12.addConstraint([
    Sketcher.Constraint("Tangent", 0, 2, 1, 2),
    Sketcher.Constraint("Tangent", 1, 1, 2, 1),
    Sketcher.Constraint("Tangent", 2, 2, 3, 2),
    Sketcher.Constraint("Tangent", 3, 1, 4, 1),
    Sketcher.Constraint("Tangent", 4, 2, 5, 2),
    Sketcher.Constraint("Tangent", 5, 1, 6, 1),
    Sketcher.Constraint("Tangent", 6, 2, 7, 2),
    Sketcher.Constraint("Tangent", 7, 1, 0, 1),
    Sketcher.Constraint("Horizontal", 2),
    Sketcher.Constraint("Horizontal", 6),
    Sketcher.Constraint("Equal", 1, 3),
    Sketcher.Constraint("Equal", 3, 5),
    Sketcher.Constraint("Equal", 5, 7),
    Sketcher.Constraint("Equal", 8, 9),
    Sketcher.Constraint("Equal", 9, 10),
    Sketcher.Constraint("Equal", 10, 11),
    Sketcher.Constraint("Equal", 11, 12),
    Sketcher.Constraint("Equal", 12, 13),
    Sketcher.Constraint("Equal", 13, 14),
    Sketcher.Constraint("Equal", 14, 15),
    Sketcher.Constraint("Equal", 15, 16),
    Sketcher.Constraint("Symmetric", 9, 3, 10, 3, -2),
    Sketcher.Constraint("Symmetric", 8, 3, 11, 3, -2),
    Sketcher.Constraint("Symmetric", 13, 3, 15, 3, -2),
    Sketcher.Constraint("Symmetric", 12, 3, 16, 3, -2),
    Sketcher.Constraint("Symmetric", 0, 2, 3, 1, -2),
    Sketcher.Constraint("PointOnObject", 14, 3, -2),
    Sketcher.Constraint("Horizontal", 8, 3, 9, 3),
    Sketcher.Constraint("Horizontal", 12, 3, 13, 3),
    Sketcher.Constraint("Horizontal", 13, 3, 14, 3),
    Sketcher.Constraint("Diameter", 8, 1.0),
    Sketcher.Constraint("Radius", 1, 1.5),
    Sketcher.Constraint("Angle", 0, Q("80 deg")),
    Sketcher.Constraint("DistanceY", 5, 3, 3, 3, 5.3),
    Sketcher.Constraint("DistanceY", 1, 3, -1, 1, 57.85),
    Sketcher.Constraint("DistanceX", 8, 3, -1, 1, 4.11),
    Sketcher.Constraint("DistanceY", 8, 3, -1, 1, 59.08),
    Sketcher.Constraint("DistanceX", 9, 3, -1, 1, 1.37),
    Sketcher.Constraint("DistanceX", 12, 3, -1, 1, 5.48),
    Sketcher.Constraint("DistanceY", 12, 3, -1, 1, 61.92),
    Sketcher.Constraint("DistanceX", 13, 3, -1, 1, 2.74),
    Sketcher.Constraint("DistanceX", 6, 2, 6, 1, 13.39161),
])
pocket7 = body.newObject("PartDesign::Pocket", "Pocket006")
pocket7.Profile = sketch12
pocket7.Length = 5.8

# Sketch on XZ plane
sketch13 = body.newObject("Sketcher::SketchObject", "Sketch012")
sketch13.AttachmentSupport = (doc.getObject("XZ_Plane"), [""])
sketch13.MapMode = "FlatFace"
sketch13.AttachmentOffset = App.Placement(V(0, 0, -28.2), App.Rotation())
add_polygon(sketch13, [(9.75, -58.912287), (12.5, -57.324574), (15.25, -58.912287), (15.25, -62.087713), (12.5, -63.675426), (9.75, -62.087713)])  # lines 0-5
sketch13.addGeometry(Part.Circle(V(12.5, -60.5, 0), V(0, 0, 1), 1.25), False)  # 6
sketch13.addConstraint([
    Sketcher.Constraint("Vertical", 2),
    Sketcher.Constraint("Vertical", 5),
    Sketcher.Constraint("Parallel", 0, 3),
    Sketcher.Constraint("Parallel", 1, 4),
    Sketcher.Constraint("Horizontal", 2, 2, 4, 2),
    Sketcher.Constraint("Horizontal", 1, 2, 5, 2),
    Sketcher.Constraint("Vertical", 6, 3, 0, 2),
    Sketcher.Constraint("Vertical", 0, 2, 3, 2),
    Sketcher.Constraint("Diameter", 6, 2.5),
    Sketcher.Constraint("Angle", 0, Q("30 deg")),
    Sketcher.Constraint("DistanceX", -1, 1, 6, 3, 12.5),
    Sketcher.Constraint("DistanceY", 6, 3, -1, 1, 60.5),
    Sketcher.Constraint("DistanceX", 4, 2, 2, 2, 5.5),
    Sketcher.Constraint("DistanceY", 2, 2, 2, 1, 3.175426),
    Sketcher.Constraint("DistanceY", 0, 2, -1, 1, 57.324574),
])
pad5 = body.newObject("PartDesign::Pad", "Pad004")
pad5.Profile = sketch13
pad5.Length = 5.3
pad5.Reversed = True

# Sketch on XZ plane
sketch14 = body.newObject("Sketcher::SketchObject", "Sketch013")
sketch14.AttachmentSupport = (doc.getObject("XZ_Plane"), [""])
sketch14.MapMode = "FlatFace"
sketch14.AttachmentOffset = App.Placement(V(0, 0, -28.2), App.Rotation())
add_polygon(sketch14, [(-15.25, -58.912287), (-12.5, -57.324574), (-9.75, -58.912287), (-9.75, -62.087713), (-12.5, -63.675426), (-15.25, -62.087713)])  # lines 0-5
sketch14.addGeometry(Part.Circle(V(-12.5, -60.5, 0), V(0, 0, 1), 1.25), False)  # 6
sketch14.addConstraint([
    Sketcher.Constraint("Vertical", 2),
    Sketcher.Constraint("Vertical", 5),
    Sketcher.Constraint("Parallel", 0, 3),
    Sketcher.Constraint("Parallel", 1, 4),
    Sketcher.Constraint("Horizontal", 2, 2, 4, 2),
    Sketcher.Constraint("Horizontal", 1, 2, 5, 2),
    Sketcher.Constraint("Vertical", 6, 3, 0, 2),
    Sketcher.Constraint("Vertical", 0, 2, 3, 2),
    Sketcher.Constraint("Diameter", 6, 2.5),
    Sketcher.Constraint("Angle", 0, Q("30 deg")),
    Sketcher.Constraint("DistanceX", 6, 3, -1, 1, 12.5),
    Sketcher.Constraint("DistanceY", 6, 3, -1, 1, 60.5),
    Sketcher.Constraint("DistanceX", 4, 2, 2, 2, 5.5),
    Sketcher.Constraint("DistanceY", 2, 2, 2, 1, 3.175426),
    Sketcher.Constraint("DistanceY", 0, 2, -1, 1, 57.324574),
])
pad6 = body.newObject("PartDesign::Pad", "Pad005")
pad6.Profile = sketch14
pad6.Length = 5.3
pad6.Reversed = True

# Sketch on XY plane
sketch15 = body.newObject("Sketcher::SketchObject", "Sketch014")
sketch15.AttachmentSupport = (doc.getObject("XY_Plane"), [""])
sketch15.MapMode = "FlatFace"
sketch15.AttachmentOffset = App.Placement(V(0, 0, -102.5), App.Rotation())
add_polygon(sketch15, [(-19, 8.5), (-19, -8.5), (19, -8.5), (19, 8.5)])  # lines 0-3
sketch15.addConstraint([
    Sketcher.Constraint("Vertical", 0),
    Sketcher.Constraint("Horizontal", 1),
    Sketcher.Constraint("Vertical", 2),
    Sketcher.Constraint("Horizontal", 3),
    Sketcher.Constraint("Symmetric", 0, 2, 2, 2, -1, 1),
    Sketcher.Constraint("DistanceX", 1, 1, 1, 2, 38.0),
    Sketcher.Constraint("DistanceY", 0, 2, 0, 1, 17.0),
])
pocket8 = body.newObject("PartDesign::Pocket", "Pocket007")
pocket8.Profile = sketch15
pocket8.Length = 0.1
pocket8.Reversed = True

# Sketch on XZ plane
sketch16 = body.newObject("Sketcher::SketchObject", "Sketch015")
sketch16.AttachmentSupport = (doc.getObject("XZ_Plane"), [""])
sketch16.MapMode = "FlatFace"
sketch16.AttachmentOffset = App.Placement(V(0, 0, -28.2), App.Rotation())
sketch16.addGeometry([
    Part.LineSegment(V(-6, -85.381198, 0), V(-1, -82.494447, 0)),  # 0
    Part.ArcOfCircle(Part.Circle(V(0, -84.226497, 0), V(0, 0, 1), 2), math.radians(60), math.radians(120)),  # 1
    Part.LineSegment(V(1, -82.494447, 0), V(6, -85.381198, 0)),  # 2
    Part.ArcOfCircle(Part.Circle(V(5, -87.113249, 0), V(0, 0, 1), 2), math.radians(0), math.radians(60)),  # 3
    Part.LineSegment(V(7, -87.113249, 0), V(7, -92.886751, 0)),  # 4
    Part.ArcOfCircle(Part.Circle(V(5, -92.886751, 0), V(0, 0, 1), 2), math.radians(-60), math.radians(0)),  # 5
    Part.LineSegment(V(6, -94.618802, 0), V(1, -97.505553, 0)),  # 6
    Part.ArcOfCircle(Part.Circle(V(0, -95.773503, 0), V(0, 0, 1), 2), math.radians(-120), math.radians(-60)),  # 7
    Part.LineSegment(V(-1, -97.505553, 0), V(-6, -94.618802, 0)),  # 8
    Part.ArcOfCircle(Part.Circle(V(-5, -92.886751, 0), V(0, 0, 1), 2), math.radians(180), math.radians(240)),  # 9
    Part.LineSegment(V(-7, -92.886751, 0), V(-7, -87.113249, 0)),  # 10
    Part.ArcOfCircle(Part.Circle(V(-5, -87.113249, 0), V(0, 0, 1), 2), math.radians(120), math.radians(180)),  # 11
], False)
sketch16.addConstraint([
    Sketcher.Constraint("Tangent", 0, 2, 1, 2),
    Sketcher.Constraint("Tangent", 1, 1, 2, 1),
    Sketcher.Constraint("Tangent", 2, 2, 3, 2),
    Sketcher.Constraint("Tangent", 3, 1, 4, 1),
    Sketcher.Constraint("Tangent", 4, 2, 5, 2),
    Sketcher.Constraint("Tangent", 5, 1, 6, 1),
    Sketcher.Constraint("Tangent", 6, 2, 7, 2),
    Sketcher.Constraint("Tangent", 7, 1, 8, 1),
    Sketcher.Constraint("Tangent", 8, 2, 9, 2),
    Sketcher.Constraint("Tangent", 9, 1, 10, 1),
    Sketcher.Constraint("Tangent", 10, 2, 11, 2),
    Sketcher.Constraint("Tangent", 11, 1, 0, 1),
    Sketcher.Constraint("Vertical", 4),
    Sketcher.Constraint("Vertical", 10),
    Sketcher.Constraint("Equal", 1, 3),
    Sketcher.Constraint("Equal", 3, 5),
    Sketcher.Constraint("Equal", 5, 7),
    Sketcher.Constraint("Equal", 7, 9),
    Sketcher.Constraint("Equal", 9, 11),
    Sketcher.Constraint("Symmetric", 5, 3, 9, 3, -2),
    Sketcher.Constraint("Symmetric", 0, 2, 1, 1, -2),
    Sketcher.Constraint("PointOnObject", 7, 3, -2),
    Sketcher.Constraint("Parallel", 0, 6),
    Sketcher.Constraint("Radius", 1, 2.0),
    Sketcher.Constraint("Angle", 0, Q("30 deg")),
    Sketcher.Constraint("DistanceX", -1, 1, 3, 3, 5.0),
    Sketcher.Constraint("DistanceY", 4, 2, 4, 1, 5.773503),
    Sketcher.Constraint("DistanceY", 3, 3, -1, 1, 87.113249),
])
pad7 = body.newObject("PartDesign::Pad", "Pad006")
pad7.Profile = sketch16
pad7.Length = 3
pad7.Reversed = True

# Sketch on YZ plane
sketch17 = body.newObject("Sketcher::SketchObject", "Sketch016")
sketch17.AttachmentSupport = (doc.getObject("YZ_Plane"), [""])
sketch17.MapMode = "FlatFace"
add_polygon(sketch17, [(30.2, -84), (30.2, -90), (41.2, -90), (41.2, -85.0735), (40.1265, -84)])  # lines 0-4
sketch17.addGeometry(Part.LineSegment(V(41.2, -90, 0), V(30.2, -90, 0)), True)  # axis
sketch17.addConstraint([
    Sketcher.Constraint("Vertical", 0),
    Sketcher.Constraint("Horizontal", 1),
    Sketcher.Constraint("Vertical", 2),
    Sketcher.Constraint("Horizontal", 4),
    Sketcher.Constraint("Horizontal", 5),
    Sketcher.Constraint("Coincident", 5, 1, 1, 2),
    Sketcher.Constraint("Vertical", 4, 2, 5, 2),
    Sketcher.Constraint("DistanceX", 1, 1, 1, 2, 11.0),
    Sketcher.Constraint("DistanceY", 0, 2, 0, 1, 6.0),
    Sketcher.Constraint("Angle", 3, Q("135 deg")),
    Sketcher.Constraint("DistanceY", 0, 2, -1, 1, 90.0),
    Sketcher.Constraint("DistanceX", -1, 1, 0, 2, 30.2),
    Sketcher.Constraint("DistanceX", 4, 2, 4, 1, 9.9265),
])
revolution2 = body.newObject("PartDesign::Revolution", "Revolution001")
revolution2.Profile = sketch17
revolution2.ReferenceAxis = (sketch17, ["Axis0"])
revolution2.Angle = 360

# Sketch on XZ plane
sketch18 = body.newObject("Sketcher::SketchObject", "Sketch017")
sketch18.AttachmentSupport = (doc.getObject("XZ_Plane"), [""])
sketch18.MapMode = "FlatFace"
sketch18.AttachmentOffset = App.Placement(V(0, 0, -41.2), App.Rotation())
sketch18.addGeometry([
    Part.ArcOfCircle(Part.Circle(V(0, -90, 0), V(0, 0, 1), 4.1), math.radians(73.37764), math.radians(416.62236)),  # 0
    Part.ArcOfCircle(Part.Circle(V(1.690473, -86.374769, 0), V(0, 0, 1), 0.6), math.radians(149.620621), math.radians(340.379379)),  # 1
    Part.Circle(V(-2.210721, -88.281655, 0), V(0, 0, 1), 0.5),  # 2
    Part.Circle(V(-0.034906, -87.200218, 0), V(0, 0, 1), 0.5),  # 3
    Part.Circle(V(2.167195, -88.227074, 0), V(0, 0, 1), 0.5),  # 4
    Part.Circle(V(-2.721819, -90.657041, 0), V(0, 0, 1), 0.5),  # 5
    Part.Circle(V(0, -90, 0), V(0, 0, 1), 0.5),  # 6
    Part.Circle(V(-1.183331, -92.537662, 0), V(0, 0, 1), 0.5),  # 7
    Part.Circle(V(2.737353, -90.58898, 0), V(0, 0, 1), 0.5),  # 8
    Part.Circle(V(1.246229, -92.507372, 0), V(0, 0, 1), 0.5),  # 9
], False)
sketch18.addConstraint([
    Sketcher.Constraint("Coincident", 0, 1, 1, 1),
    Sketcher.Constraint("Coincident", 1, 2, 0, 2),
    Sketcher.Constraint("Coincident", 6, 3, 0, 3),
    Sketcher.Constraint("Equal", 2, 3),
    Sketcher.Constraint("Equal", 3, 4),
    Sketcher.Constraint("Equal", 4, 5),
    Sketcher.Constraint("Equal", 5, 6),
    Sketcher.Constraint("Equal", 6, 7),
    Sketcher.Constraint("Equal", 7, 8),
    Sketcher.Constraint("Equal", 8, 9),
    Sketcher.Constraint("PointOnObject", 0, 3, -2),
    Sketcher.Constraint("Diameter", 2, 1.0),
    Sketcher.Constraint("Radius", 0, 4.1),
    Sketcher.Constraint("Radius", 1, 0.6),
    Sketcher.Constraint("DistanceY", 0, 3, -1, 1, 90.0),
    Sketcher.Constraint("DistanceX", 3, 3, 4, 3, 2.2021),
    Sketcher.Constraint("DistanceY", 1, 3, -1, 1, 86.374769),
    Sketcher.Constraint("DistanceX", 2, 3, -1, 1, 2.210721),
    Sketcher.Constraint("DistanceX", 5, 3, -1, 1, 2.721819),
    Sketcher.Constraint("DistanceY", 5, 3, -1, 1, 90.657041),
    Sketcher.Constraint("DistanceX", 7, 3, -1, 1, 1.183331),
    Sketcher.Constraint("DistanceY", 7, 3, -1, 1, 92.537662),
    Sketcher.Constraint("DistanceY", 8, 3, -1, 1, 90.58898),
    Sketcher.Constraint("DistanceX", -1, 1, 9, 3, 1.246229),
    Sketcher.Constraint("DistanceY", 9, 3, -1, 1, 92.507372),
    Sketcher.Constraint("DistanceX", 3, 3, 1, 3, 1.725379),
    Sketcher.Constraint("DistanceY", 3, 3, 1, 3, 0.825449),
    Sketcher.Constraint("DistanceY", 2, 3, 4, 3, 0.054581),
    Sketcher.Constraint("DistanceX", 5, 3, 1, 3, 4.412292),
    Sketcher.Constraint("DistanceX", 4, 3, 8, 3, 0.570159),
    Sketcher.Constraint("DistanceY", 4, 3, 0, 1, 2.155739),
])
pocket9 = body.newObject("PartDesign::Pocket", "Pocket008")
pocket9.Profile = sketch18
pocket9.Length = 8
pocket9.Reversed = True

# Sketch on YZ plane
sketch19 = body.newObject("Sketcher::SketchObject", "Sketch018")
sketch19.AttachmentSupport = (doc.getObject("YZ_Plane"), [""])
sketch19.MapMode = "FlatFace"
add_polygon(sketch19, [(6.35, 13.6), (2.962868, 13.6), (3.175, 13.387868), (3.175, -1), (6.35, -1)])  # lines 0-4
sketch19.addConstraint([
    Sketcher.Constraint("Horizontal", 0),
    Sketcher.Constraint("Vertical", 2),
    Sketcher.Constraint("Horizontal", 3),
    Sketcher.Constraint("Vertical", 4),
    Sketcher.Constraint("Angle", 1, Q("-45 deg")),
    Sketcher.Constraint("DistanceY", 4, 1, 4, 2, 14.6),
    Sketcher.Constraint("DistanceY", 2, 2, -1, 1, 1.0),
    Sketcher.Constraint("Distance", 1, 0.3),
    Sketcher.Constraint("DistanceX", 3, 1, 3, 2, 3.175),
    Sketcher.Constraint("DistanceX", -1, 1, 3, 2, 6.35),
])
groove = body.newObject("PartDesign::Groove", "Groove")
groove.Profile = sketch19
groove.ReferenceAxis = (sketch19, ["V_Axis"])
groove.Angle = 360

doc.recompute()
